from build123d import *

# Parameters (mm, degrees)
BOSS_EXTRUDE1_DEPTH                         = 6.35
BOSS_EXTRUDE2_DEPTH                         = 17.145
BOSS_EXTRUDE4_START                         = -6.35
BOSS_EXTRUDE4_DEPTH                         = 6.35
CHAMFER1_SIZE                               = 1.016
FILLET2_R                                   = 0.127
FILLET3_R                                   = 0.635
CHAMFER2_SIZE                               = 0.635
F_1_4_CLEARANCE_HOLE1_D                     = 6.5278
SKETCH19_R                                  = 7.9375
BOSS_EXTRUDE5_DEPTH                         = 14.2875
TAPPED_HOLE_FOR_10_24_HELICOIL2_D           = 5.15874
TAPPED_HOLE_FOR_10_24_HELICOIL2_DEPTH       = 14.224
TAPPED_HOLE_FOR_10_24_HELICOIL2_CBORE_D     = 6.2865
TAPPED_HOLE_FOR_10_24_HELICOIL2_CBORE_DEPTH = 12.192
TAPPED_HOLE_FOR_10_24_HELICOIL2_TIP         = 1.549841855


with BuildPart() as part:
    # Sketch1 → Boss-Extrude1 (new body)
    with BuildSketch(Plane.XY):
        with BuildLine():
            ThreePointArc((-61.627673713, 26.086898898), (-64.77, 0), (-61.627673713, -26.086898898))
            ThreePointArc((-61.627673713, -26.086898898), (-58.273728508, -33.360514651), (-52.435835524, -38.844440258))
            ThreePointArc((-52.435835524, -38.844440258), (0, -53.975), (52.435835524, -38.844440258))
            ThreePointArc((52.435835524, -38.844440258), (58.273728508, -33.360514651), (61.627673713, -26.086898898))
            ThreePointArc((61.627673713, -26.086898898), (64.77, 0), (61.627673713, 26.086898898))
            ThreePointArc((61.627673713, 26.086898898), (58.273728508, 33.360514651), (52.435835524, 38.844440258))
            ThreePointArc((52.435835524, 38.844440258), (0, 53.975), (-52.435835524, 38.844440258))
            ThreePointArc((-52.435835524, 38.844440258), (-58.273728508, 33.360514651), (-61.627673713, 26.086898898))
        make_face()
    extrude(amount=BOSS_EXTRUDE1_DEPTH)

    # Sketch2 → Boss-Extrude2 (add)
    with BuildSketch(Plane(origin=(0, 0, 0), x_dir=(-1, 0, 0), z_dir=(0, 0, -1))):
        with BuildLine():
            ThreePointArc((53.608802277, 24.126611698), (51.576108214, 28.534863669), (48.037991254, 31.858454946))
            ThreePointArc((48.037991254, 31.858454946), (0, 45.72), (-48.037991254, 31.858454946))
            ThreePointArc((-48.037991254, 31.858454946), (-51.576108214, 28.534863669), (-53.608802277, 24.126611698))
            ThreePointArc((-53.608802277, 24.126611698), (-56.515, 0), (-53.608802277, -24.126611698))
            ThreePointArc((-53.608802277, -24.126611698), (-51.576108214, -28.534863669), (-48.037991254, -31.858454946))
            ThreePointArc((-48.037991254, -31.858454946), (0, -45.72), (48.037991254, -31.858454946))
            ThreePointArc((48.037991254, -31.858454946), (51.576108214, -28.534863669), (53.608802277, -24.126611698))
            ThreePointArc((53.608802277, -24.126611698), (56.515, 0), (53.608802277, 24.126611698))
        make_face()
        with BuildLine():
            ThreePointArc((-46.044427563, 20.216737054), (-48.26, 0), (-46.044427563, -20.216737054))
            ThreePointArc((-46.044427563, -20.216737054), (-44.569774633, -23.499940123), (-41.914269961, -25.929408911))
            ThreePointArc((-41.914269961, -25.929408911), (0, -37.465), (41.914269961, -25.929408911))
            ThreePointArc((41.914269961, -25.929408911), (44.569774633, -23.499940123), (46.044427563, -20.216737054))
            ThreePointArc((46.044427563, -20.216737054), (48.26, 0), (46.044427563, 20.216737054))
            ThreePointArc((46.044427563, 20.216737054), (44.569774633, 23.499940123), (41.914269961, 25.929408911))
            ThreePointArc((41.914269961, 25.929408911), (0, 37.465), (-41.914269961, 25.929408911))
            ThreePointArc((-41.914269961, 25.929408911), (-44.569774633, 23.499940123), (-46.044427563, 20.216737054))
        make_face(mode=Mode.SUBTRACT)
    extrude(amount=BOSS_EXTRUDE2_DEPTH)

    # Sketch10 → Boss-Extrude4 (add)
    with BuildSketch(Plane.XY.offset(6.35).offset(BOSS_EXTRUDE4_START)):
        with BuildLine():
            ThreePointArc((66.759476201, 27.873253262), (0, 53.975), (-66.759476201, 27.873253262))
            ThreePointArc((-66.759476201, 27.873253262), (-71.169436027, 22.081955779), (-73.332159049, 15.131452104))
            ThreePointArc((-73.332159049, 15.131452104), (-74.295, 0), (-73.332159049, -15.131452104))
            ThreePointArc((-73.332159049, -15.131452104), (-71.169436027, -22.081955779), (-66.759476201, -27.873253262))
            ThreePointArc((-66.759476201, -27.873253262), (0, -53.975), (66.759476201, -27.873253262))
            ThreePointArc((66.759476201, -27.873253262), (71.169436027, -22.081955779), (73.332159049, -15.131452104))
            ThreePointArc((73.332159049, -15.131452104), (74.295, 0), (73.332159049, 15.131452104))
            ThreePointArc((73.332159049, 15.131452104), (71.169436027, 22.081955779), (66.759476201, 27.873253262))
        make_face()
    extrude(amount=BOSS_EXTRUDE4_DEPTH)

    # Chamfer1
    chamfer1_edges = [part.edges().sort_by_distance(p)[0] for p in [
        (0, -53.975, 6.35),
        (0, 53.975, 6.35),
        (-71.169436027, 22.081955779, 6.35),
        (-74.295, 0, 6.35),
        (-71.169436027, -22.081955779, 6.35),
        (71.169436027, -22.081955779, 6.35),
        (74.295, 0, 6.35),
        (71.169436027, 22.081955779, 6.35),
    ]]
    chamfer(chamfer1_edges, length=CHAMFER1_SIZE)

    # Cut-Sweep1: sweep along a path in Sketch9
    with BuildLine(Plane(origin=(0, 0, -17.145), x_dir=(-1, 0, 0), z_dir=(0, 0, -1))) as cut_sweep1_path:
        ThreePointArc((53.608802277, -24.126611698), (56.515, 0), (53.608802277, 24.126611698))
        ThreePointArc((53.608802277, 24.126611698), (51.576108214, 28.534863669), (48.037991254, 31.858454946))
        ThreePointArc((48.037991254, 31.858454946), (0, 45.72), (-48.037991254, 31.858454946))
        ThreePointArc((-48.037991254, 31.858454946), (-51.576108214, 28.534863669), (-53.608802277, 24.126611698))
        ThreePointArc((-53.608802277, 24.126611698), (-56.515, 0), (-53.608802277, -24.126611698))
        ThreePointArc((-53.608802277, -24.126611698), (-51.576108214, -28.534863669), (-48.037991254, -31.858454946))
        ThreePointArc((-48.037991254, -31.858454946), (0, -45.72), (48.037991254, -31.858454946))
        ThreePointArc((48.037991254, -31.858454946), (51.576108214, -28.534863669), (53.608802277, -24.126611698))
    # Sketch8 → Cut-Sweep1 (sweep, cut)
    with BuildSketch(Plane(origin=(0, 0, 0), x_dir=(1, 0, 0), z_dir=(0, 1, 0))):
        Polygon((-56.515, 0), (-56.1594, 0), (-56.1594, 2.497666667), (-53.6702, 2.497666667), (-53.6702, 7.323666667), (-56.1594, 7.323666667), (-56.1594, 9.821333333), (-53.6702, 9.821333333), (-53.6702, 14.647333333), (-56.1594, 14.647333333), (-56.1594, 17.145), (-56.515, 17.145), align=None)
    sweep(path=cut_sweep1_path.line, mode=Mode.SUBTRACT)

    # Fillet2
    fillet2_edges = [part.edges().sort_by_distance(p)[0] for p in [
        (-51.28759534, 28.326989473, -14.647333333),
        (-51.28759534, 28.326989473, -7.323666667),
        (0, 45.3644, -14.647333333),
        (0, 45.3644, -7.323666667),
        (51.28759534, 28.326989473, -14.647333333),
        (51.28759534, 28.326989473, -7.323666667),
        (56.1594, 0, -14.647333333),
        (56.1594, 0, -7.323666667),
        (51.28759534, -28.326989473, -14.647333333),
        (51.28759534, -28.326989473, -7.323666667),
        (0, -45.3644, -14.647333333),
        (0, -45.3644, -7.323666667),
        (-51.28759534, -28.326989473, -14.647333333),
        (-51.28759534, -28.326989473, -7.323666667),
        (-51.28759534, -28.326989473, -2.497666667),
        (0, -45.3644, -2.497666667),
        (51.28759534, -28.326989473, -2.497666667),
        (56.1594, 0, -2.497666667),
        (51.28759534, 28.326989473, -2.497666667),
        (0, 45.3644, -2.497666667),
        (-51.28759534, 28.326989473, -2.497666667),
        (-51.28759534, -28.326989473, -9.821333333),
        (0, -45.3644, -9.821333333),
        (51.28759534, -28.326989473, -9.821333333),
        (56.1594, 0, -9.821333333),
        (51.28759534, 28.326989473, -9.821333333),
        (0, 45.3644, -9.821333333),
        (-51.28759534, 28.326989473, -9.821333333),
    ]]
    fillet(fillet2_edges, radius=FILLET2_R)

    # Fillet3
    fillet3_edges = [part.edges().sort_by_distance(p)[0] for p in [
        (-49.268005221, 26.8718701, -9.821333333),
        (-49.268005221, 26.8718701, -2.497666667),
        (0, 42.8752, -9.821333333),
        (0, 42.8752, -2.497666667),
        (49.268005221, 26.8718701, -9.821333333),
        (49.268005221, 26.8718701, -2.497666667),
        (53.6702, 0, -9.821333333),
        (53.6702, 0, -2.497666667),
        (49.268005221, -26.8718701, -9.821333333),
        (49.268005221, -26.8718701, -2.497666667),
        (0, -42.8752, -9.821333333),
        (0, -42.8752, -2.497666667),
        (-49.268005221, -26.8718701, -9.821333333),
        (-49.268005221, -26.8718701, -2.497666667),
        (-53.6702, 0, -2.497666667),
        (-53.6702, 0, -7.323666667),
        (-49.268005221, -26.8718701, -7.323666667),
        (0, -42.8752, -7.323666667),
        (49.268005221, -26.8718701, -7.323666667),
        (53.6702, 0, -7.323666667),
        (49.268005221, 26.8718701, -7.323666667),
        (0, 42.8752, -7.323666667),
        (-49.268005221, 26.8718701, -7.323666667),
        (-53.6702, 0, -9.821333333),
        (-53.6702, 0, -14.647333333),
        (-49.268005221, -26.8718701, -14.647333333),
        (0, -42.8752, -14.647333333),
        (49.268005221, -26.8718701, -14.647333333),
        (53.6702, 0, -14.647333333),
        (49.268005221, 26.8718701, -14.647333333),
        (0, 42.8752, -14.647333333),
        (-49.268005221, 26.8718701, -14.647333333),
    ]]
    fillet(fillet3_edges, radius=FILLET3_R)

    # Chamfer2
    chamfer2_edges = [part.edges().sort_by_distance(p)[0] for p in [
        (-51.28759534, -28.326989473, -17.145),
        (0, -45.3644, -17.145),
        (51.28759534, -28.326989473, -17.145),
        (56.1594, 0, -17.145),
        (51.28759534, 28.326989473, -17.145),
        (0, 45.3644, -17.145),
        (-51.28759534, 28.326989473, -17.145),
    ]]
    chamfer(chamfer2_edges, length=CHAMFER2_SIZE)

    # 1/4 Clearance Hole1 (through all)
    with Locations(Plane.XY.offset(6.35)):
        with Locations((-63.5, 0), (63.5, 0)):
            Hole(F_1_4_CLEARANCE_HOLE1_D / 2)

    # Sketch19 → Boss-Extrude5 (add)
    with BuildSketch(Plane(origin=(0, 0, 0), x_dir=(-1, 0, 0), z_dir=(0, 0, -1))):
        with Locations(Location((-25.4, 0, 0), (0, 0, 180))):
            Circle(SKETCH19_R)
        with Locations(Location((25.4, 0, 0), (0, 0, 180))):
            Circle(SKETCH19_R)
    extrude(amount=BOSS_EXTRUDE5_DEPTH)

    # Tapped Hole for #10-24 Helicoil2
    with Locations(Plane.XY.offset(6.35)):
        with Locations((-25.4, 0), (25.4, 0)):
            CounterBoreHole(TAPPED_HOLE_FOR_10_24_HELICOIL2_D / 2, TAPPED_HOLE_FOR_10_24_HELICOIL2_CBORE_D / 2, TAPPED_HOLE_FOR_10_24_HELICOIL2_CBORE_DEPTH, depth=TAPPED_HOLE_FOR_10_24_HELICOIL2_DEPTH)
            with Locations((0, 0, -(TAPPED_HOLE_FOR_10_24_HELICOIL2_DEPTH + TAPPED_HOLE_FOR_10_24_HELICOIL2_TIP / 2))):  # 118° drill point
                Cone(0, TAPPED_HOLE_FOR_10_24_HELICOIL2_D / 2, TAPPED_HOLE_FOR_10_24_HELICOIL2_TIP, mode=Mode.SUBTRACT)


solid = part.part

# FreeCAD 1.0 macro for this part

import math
import FreeCAD as App
import Part
import Sketcher
Q = App.Units.Quantity


def edges_at(feature, points):
    """Names of the edges that pass closest to the given points."""
    edges = feature.Shape.Edges
    near = lambda p: min(range(len(edges)), key=lambda i: edges[i].distToShape(Part.Vertex(*p))[0])
    return sorted({f"Edge{near(p) + 1}" for p in points})

doc = App.newDocument("Part")
params = doc.addObject("Spreadsheet::Sheet", "Params")
for row, (alias, value) in enumerate([
    ("sketch1_radius", "4.325 in"),
    ("sketch1_radius2", "0.825 in"),
    ("sketch1_radius3", "3.875 in"),
    ("pad1_length", "0.25 in"),
    ("sketch2_radius", "4 in"),
    ("sketch2_radius2", "0.5 in"),
    ("sketch2_radius3", "3.55 in"),
    ("sketch2_radius4", "0.35 in"),
    ("sketch2_radius5", "3.675 in"),
    ("pad2_length", "0.675 in"),
    ("sketch3_radius", "4.7 in"),
    ("sketch3_radius2", "3.875 in"),
    ("sketch3_radius3", "0.825 in"),
    ("pad3_length", "0.25 in"),
    ("chamfer_size", "0.04 in"),
    ("sketch4_height", "0.19 in"),
    ("sketch4_width", "0.014 in"),
    ("sketch4_width2", "0.098 in"),
    ("sketch4_height2", "0.675 in"),
    ("sketch5_radius", "4 in"),
    ("sketch5_radius2", "0.5 in"),
    ("sketch5_radius3", "3.55 in"),
    ("fillet_radius", "0.005 in"),
    ("fillet2_radius", "0.025 in"),
    ("chamfer2_size", "0.025 in"),
    ("sketch6_diameter", "0.257 in"),
    ("hole_diameter", "0.257 in"),
    ("sketch7_diameter", "0.625 in"),
    ("pad4_length", "0.5625 in"),
    ("hole2_diameter", "0.2031 in"),
    ("hole2_depth", "0.56 in"),
    ("hole2_cbore_diameter", "0.2475 in"),
    ("hole2_cbore_depth", "0.48 in"),
], start=1):
    params.set(f"A{row}", alias)
    params.set(f"B{row}", "=" + value)
    params.setAlias(f"B{row}", alias)

body = doc.addObject("PartDesign::Body", "Body")

sketch1 = body.newObject("Sketcher::SketchObject", "Sketch")
sketch1.AttachmentSupport = (doc.getObject("XY_Plane"), [""])
sketch1.MapMode = "FlatFace"
sketch1.addGeometry(Part.ArcOfCircle(Part.Circle(App.Vector(45.085, 0, 0), App.Vector(0, 0, 1), 109.855), math.radians(166.262932), math.radians(193.737068)), False)
sketch1.addGeometry(Part.ArcOfCircle(Part.Circle(App.Vector(-41.272077, -21.110785, 0), App.Vector(0, 0, 1), 20.955), math.radians(-166.262932), math.radians(-122.191393)), False)
sketch1.addGeometry(Part.ArcOfCircle(Part.Circle(App.Vector(0, 44.45, 0), App.Vector(0, 0, 1), 98.425), math.radians(-122.191393), math.radians(-57.808607)), False)
sketch1.addGeometry(Part.ArcOfCircle(Part.Circle(App.Vector(41.272077, -21.110785, 0), App.Vector(0, 0, 1), 20.955), math.radians(-57.808607), math.radians(-13.737068)), False)
sketch1.addGeometry(Part.ArcOfCircle(Part.Circle(App.Vector(-45.085, 0, 0), App.Vector(0, 0, 1), 109.855), math.radians(-13.737068), math.radians(13.737068)), False)
sketch1.addGeometry(Part.ArcOfCircle(Part.Circle(App.Vector(41.272077, 21.110785, 0), App.Vector(0, 0, 1), 20.955), math.radians(13.737068), math.radians(57.808607)), False)
sketch1.addGeometry(Part.ArcOfCircle(Part.Circle(App.Vector(0, -44.45, 0), App.Vector(0, 0, 1), 98.425), math.radians(57.808607), math.radians(122.191393)), False)
sketch1.addGeometry(Part.ArcOfCircle(Part.Circle(App.Vector(-41.272077, 21.110785, 0), App.Vector(0, 0, 1), 20.955), math.radians(122.191393), math.radians(166.262932)), False)
sketch1.addConstraint(Sketcher.Constraint("Tangent", 0, 2, 1, 1))
sketch1.addConstraint(Sketcher.Constraint("Tangent", 1, 2, 2, 1))
sketch1.addConstraint(Sketcher.Constraint("Tangent", 2, 2, 3, 1))
sketch1.addConstraint(Sketcher.Constraint("Tangent", 3, 2, 4, 1))
sketch1.addConstraint(Sketcher.Constraint("Tangent", 4, 2, 5, 1))
sketch1.addConstraint(Sketcher.Constraint("Tangent", 5, 2, 6, 1))
sketch1.addConstraint(Sketcher.Constraint("Tangent", 6, 2, 7, 1))
sketch1.addConstraint(Sketcher.Constraint("Tangent", 7, 2, 0, 1))
sketch1.addConstraint(Sketcher.Constraint("Equal", 1, 3))
sketch1.addConstraint(Sketcher.Constraint("Equal", 0, 4))
sketch1.addConstraint(Sketcher.Constraint("Equal", 3, 5))
sketch1.addConstraint(Sketcher.Constraint("Equal", 2, 6))
sketch1.addConstraint(Sketcher.Constraint("Equal", 5, 7))
sketch1.addConstraint(Sketcher.Constraint("Symmetric", 0, 3, 4, 3, -1, 1))
sketch1.addConstraint(Sketcher.Constraint("Symmetric", 2, 3, 6, 3, -1, 1))
sketch1.addConstraint(Sketcher.Constraint("Symmetric", 1, 3, 3, 3, -2))
sketch1.addConstraint(Sketcher.Constraint("Radius", 0, Q("4.325 in")))
sketch1.addConstraint(Sketcher.Constraint("Radius", 1, Q("0.825 in")))
sketch1.addConstraint(Sketcher.Constraint("Radius", 2, Q("3.875 in")))
sketch1.addConstraint(Sketcher.Constraint("DistanceY", -1, 1, 2, 3, Q("1.75 in")))
sketch1.addConstraint(Sketcher.Constraint("DistanceX", 4, 3, 0, 3, Q("3.55 in")))
sketch1.setExpression("Constraints[16]", "Params.sketch1_radius")
sketch1.setExpression("Constraints[17]", "Params.sketch1_radius2")
sketch1.setExpression("Constraints[18]", "Params.sketch1_radius3")
pad1 = body.newObject("PartDesign::Pad", "Pad")
pad1.Profile = sketch1
pad1.setExpression("Length", "Params.pad1_length")

sketch2 = body.newObject("Sketcher::SketchObject", "Sketch001")
sketch2.AttachmentSupport = (doc.getObject("XY_Plane"), [""])
sketch2.MapMode = "FlatFace"
sketch2.addGeometry(Part.ArcOfCircle(Part.Circle(App.Vector(-41.272077, 21.110785, 0), App.Vector(0, 0, 1), 12.7), math.radians(122.191393), math.radians(166.262932)), False)
sketch2.addGeometry(Part.ArcOfCircle(Part.Circle(App.Vector(0, -44.45, 0), App.Vector(0, 0, 1), 90.17), math.radians(57.808607), math.radians(122.191393)), False)
sketch2.addGeometry(Part.ArcOfCircle(Part.Circle(App.Vector(41.272077, 21.110785, 0), App.Vector(0, 0, 1), 12.7), math.radians(13.737068), math.radians(57.808607)), False)
sketch2.addGeometry(Part.ArcOfCircle(Part.Circle(App.Vector(-45.085, 0, 0), App.Vector(0, 0, 1), 101.6), math.radians(-13.737068), math.radians(13.737068)), False)
sketch2.addGeometry(Part.ArcOfCircle(Part.Circle(App.Vector(41.272077, -21.110785, 0), App.Vector(0, 0, 1), 12.7), math.radians(-57.808607), math.radians(-13.737068)), False)
sketch2.addGeometry(Part.ArcOfCircle(Part.Circle(App.Vector(0, 44.45, 0), App.Vector(0, 0, 1), 90.17), math.radians(-122.191393), math.radians(-57.808607)), False)
sketch2.addGeometry(Part.ArcOfCircle(Part.Circle(App.Vector(-41.272077, -21.110785, 0), App.Vector(0, 0, 1), 12.7), math.radians(-166.262932), math.radians(-122.191393)), False)
sketch2.addGeometry(Part.ArcOfCircle(Part.Circle(App.Vector(45.085, 0, 0), App.Vector(0, 0, 1), 101.6), math.radians(166.262932), math.radians(193.737068)), False)
sketch2.addGeometry(Part.ArcOfCircle(Part.Circle(App.Vector(-45.085, 0, 0), App.Vector(0, 0, 1), 93.345), math.radians(-12.508287), math.radians(12.508287)), False)
sketch2.addGeometry(Part.ArcOfCircle(Part.Circle(App.Vector(37.365434, 18.291334, 0), App.Vector(0, 0, 1), 8.89), math.radians(12.508287), math.radians(59.224199)), False)
sketch2.addGeometry(Part.ArcOfCircle(Part.Circle(App.Vector(0, -44.45, 0), App.Vector(0, 0, 1), 81.915), math.radians(59.224199), math.radians(120.775801)), False)
sketch2.addGeometry(Part.ArcOfCircle(Part.Circle(App.Vector(-37.365434, 18.291334, 0), App.Vector(0, 0, 1), 8.89), math.radians(120.775801), math.radians(167.491713)), False)
sketch2.addGeometry(Part.ArcOfCircle(Part.Circle(App.Vector(45.085, 0, 0), App.Vector(0, 0, 1), 93.345), math.radians(167.491713), math.radians(192.508287)), False)
sketch2.addGeometry(Part.ArcOfCircle(Part.Circle(App.Vector(-37.365434, -18.291334, 0), App.Vector(0, 0, 1), 8.89), math.radians(-167.491713), math.radians(-120.775801)), False)
sketch2.addGeometry(Part.ArcOfCircle(Part.Circle(App.Vector(0, 44.45, 0), App.Vector(0, 0, 1), 81.915), math.radians(-120.775801), math.radians(-59.224199)), False)
sketch2.addGeometry(Part.ArcOfCircle(Part.Circle(App.Vector(37.365434, -18.291334, 0), App.Vector(0, 0, 1), 8.89), math.radians(-59.224199), math.radians(-12.508287)), False)
sketch2.addConstraint(Sketcher.Constraint("Tangent", 0, 1, 1, 2))
sketch2.addConstraint(Sketcher.Constraint("Tangent", 1, 1, 2, 2))
sketch2.addConstraint(Sketcher.Constraint("Tangent", 2, 1, 3, 2))
sketch2.addConstraint(Sketcher.Constraint("Tangent", 3, 1, 4, 2))
sketch2.addConstraint(Sketcher.Constraint("Tangent", 4, 1, 5, 2))
sketch2.addConstraint(Sketcher.Constraint("Tangent", 5, 1, 6, 2))
sketch2.addConstraint(Sketcher.Constraint("Tangent", 6, 1, 7, 2))
sketch2.addConstraint(Sketcher.Constraint("Tangent", 7, 1, 0, 2))
sketch2.addConstraint(Sketcher.Constraint("Tangent", 8, 2, 9, 1))
sketch2.addConstraint(Sketcher.Constraint("Tangent", 9, 2, 10, 1))
sketch2.addConstraint(Sketcher.Constraint("Tangent", 10, 2, 11, 1))
sketch2.addConstraint(Sketcher.Constraint("Tangent", 11, 2, 12, 1))
sketch2.addConstraint(Sketcher.Constraint("Tangent", 12, 2, 13, 1))
sketch2.addConstraint(Sketcher.Constraint("Tangent", 13, 2, 14, 1))
sketch2.addConstraint(Sketcher.Constraint("Tangent", 14, 2, 15, 1))
sketch2.addConstraint(Sketcher.Constraint("Tangent", 15, 2, 8, 1))
sketch2.addConstraint(Sketcher.Constraint("Coincident", 8, 3, 3, 3))
sketch2.addConstraint(Sketcher.Constraint("Coincident", 10, 3, 1, 3))
sketch2.addConstraint(Sketcher.Constraint("Coincident", 12, 3, 7, 3))
sketch2.addConstraint(Sketcher.Constraint("Coincident", 14, 3, 5, 3))
sketch2.addConstraint(Sketcher.Constraint("Equal", 0, 2))
sketch2.addConstraint(Sketcher.Constraint("Equal", 2, 4))
sketch2.addConstraint(Sketcher.Constraint("Equal", 1, 5))
sketch2.addConstraint(Sketcher.Constraint("Equal", 4, 6))
sketch2.addConstraint(Sketcher.Constraint("Equal", 3, 7))
sketch2.addConstraint(Sketcher.Constraint("Equal", 9, 11))
sketch2.addConstraint(Sketcher.Constraint("Equal", 8, 12))
sketch2.addConstraint(Sketcher.Constraint("Equal", 11, 13))
sketch2.addConstraint(Sketcher.Constraint("Equal", 10, 14))
sketch2.addConstraint(Sketcher.Constraint("Equal", 13, 15))
sketch2.addConstraint(Sketcher.Constraint("Symmetric", 0, 3, 4, 3, -1, 1))
sketch2.addConstraint(Sketcher.Constraint("Symmetric", 2, 3, 6, 3, -1, 1))
sketch2.addConstraint(Sketcher.Constraint("Symmetric", 0, 3, 2, 3, -2))
sketch2.addConstraint(Sketcher.Constraint("Radius", 3, Q("4 in")))
sketch2.addConstraint(Sketcher.Constraint("Radius", 0, Q("0.5 in")))
sketch2.addConstraint(Sketcher.Constraint("Radius", 1, Q("3.55 in")))
sketch2.addConstraint(Sketcher.Constraint("Radius", 9, Q("0.35 in")))
sketch2.addConstraint(Sketcher.Constraint("Radius", 8, Q("3.675 in")))
sketch2.addConstraint(Sketcher.Constraint("Radius", 10, Q("3.225 in")))
sketch2.addConstraint(Sketcher.Constraint("DistanceY", 1, 3, 5, 3, Q("3.5 in")))
sketch2.addConstraint(Sketcher.Constraint("DistanceX", 3, 3, -1, 1, Q("1.775 in")))
sketch2.setExpression("Constraints[33]", "Params.sketch2_radius")
sketch2.setExpression("Constraints[34]", "Params.sketch2_radius2")
sketch2.setExpression("Constraints[35]", "Params.sketch2_radius3")
sketch2.setExpression("Constraints[36]", "Params.sketch2_radius4")
sketch2.setExpression("Constraints[37]", "Params.sketch2_radius5")
pad2 = body.newObject("PartDesign::Pad", "Pad001")
pad2.Profile = sketch2
pad2.setExpression("Length", "Params.pad2_length")
pad2.Reversed = True

sketch3 = body.newObject("Sketcher::SketchObject", "Sketch002")
sketch3.AttachmentSupport = (doc.getObject("XY_Plane"), [""])
sketch3.MapMode = "FlatFace"
sketch3.addGeometry(Part.ArcOfCircle(Part.Circle(App.Vector(0, -44.45, 0), App.Vector(0, 0, 1), 98.425), math.radians(47.290802), math.radians(132.709198)), False)
sketch3.addGeometry(Part.ArcOfCircle(Part.Circle(App.Vector(-52.546168, 12.475399, 0), App.Vector(0, 0, 1), 20.955), math.radians(132.709198), math.radians(172.718155)), False)
sketch3.addGeometry(Part.ArcOfCircle(Part.Circle(App.Vector(45.085, 0, 0), App.Vector(0, 0, 1), 119.38), math.radians(172.718155), math.radians(187.281845)), False)
sketch3.addGeometry(Part.ArcOfCircle(Part.Circle(App.Vector(-52.546168, -12.475399, 0), App.Vector(0, 0, 1), 20.955), math.radians(-172.718155), math.radians(-132.709198)), False)
sketch3.addGeometry(Part.ArcOfCircle(Part.Circle(App.Vector(0, 44.45, 0), App.Vector(0, 0, 1), 98.425), math.radians(-132.709198), math.radians(-47.290802)), False)
sketch3.addGeometry(Part.ArcOfCircle(Part.Circle(App.Vector(52.546168, -12.475399, 0), App.Vector(0, 0, 1), 20.955), math.radians(-47.290802), math.radians(-7.281845)), False)
sketch3.addGeometry(Part.ArcOfCircle(Part.Circle(App.Vector(-45.085, 0, 0), App.Vector(0, 0, 1), 119.38), math.radians(-7.281845), math.radians(7.281845)), False)
sketch3.addGeometry(Part.ArcOfCircle(Part.Circle(App.Vector(52.546168, 12.475399, 0), App.Vector(0, 0, 1), 20.955), math.radians(7.281845), math.radians(47.290802)), False)
sketch3.addConstraint(Sketcher.Constraint("Tangent", 0, 2, 1, 1))
sketch3.addConstraint(Sketcher.Constraint("Tangent", 1, 2, 2, 1))
sketch3.addConstraint(Sketcher.Constraint("Tangent", 2, 2, 3, 1))
sketch3.addConstraint(Sketcher.Constraint("Tangent", 3, 2, 4, 1))
sketch3.addConstraint(Sketcher.Constraint("Tangent", 4, 2, 5, 1))
sketch3.addConstraint(Sketcher.Constraint("Tangent", 5, 2, 6, 1))
sketch3.addConstraint(Sketcher.Constraint("Tangent", 6, 2, 7, 1))
sketch3.addConstraint(Sketcher.Constraint("Tangent", 7, 2, 0, 1))
sketch3.addConstraint(Sketcher.Constraint("Equal", 1, 3))
sketch3.addConstraint(Sketcher.Constraint("Equal", 0, 4))
sketch3.addConstraint(Sketcher.Constraint("Equal", 3, 5))
sketch3.addConstraint(Sketcher.Constraint("Equal", 2, 6))
sketch3.addConstraint(Sketcher.Constraint("Equal", 5, 7))
sketch3.addConstraint(Sketcher.Constraint("Symmetric", 0, 3, 4, 3, -1, 1))
sketch3.addConstraint(Sketcher.Constraint("Symmetric", 2, 3, 6, 3, -1, 1))
sketch3.addConstraint(Sketcher.Constraint("Symmetric", 3, 3, 5, 3, -2))
sketch3.addConstraint(Sketcher.Constraint("Radius", 2, Q("4.7 in")))
sketch3.addConstraint(Sketcher.Constraint("Radius", 0, Q("3.875 in")))
sketch3.addConstraint(Sketcher.Constraint("Radius", 1, Q("0.825 in")))
sketch3.addConstraint(Sketcher.Constraint("DistanceY", 0, 3, 4, 3, Q("3.5 in")))
sketch3.addConstraint(Sketcher.Constraint("DistanceX", 6, 3, 2, 3, Q("3.55 in")))
sketch3.setExpression("Constraints[16]", "Params.sketch3_radius")
sketch3.setExpression("Constraints[17]", "Params.sketch3_radius2")
sketch3.setExpression("Constraints[18]", "Params.sketch3_radius3")
pad3 = body.newObject("PartDesign::Pad", "Pad002")
pad3.Profile = sketch3
pad3.setExpression("Length", "Params.pad3_length")
doc.recompute()

chamfer = body.newObject("PartDesign::Chamfer", "Chamfer")
chamfer.Base = (pad3, edges_at(pad3, [
    (0, -53.975, 6.35),
    (0, 53.975, 6.35),
    (-71.169, 22.082, 6.35),
    (-74.295, 0, 6.35),
    (-71.169, -22.082, 6.35),
    (71.169, -22.082, 6.35),
    (74.295, 0, 6.35),
    (71.169, 22.082, 6.35),
]))
chamfer.setExpression("Size", "Params.chamfer_size")

sketch4 = body.newObject("Sketcher::SketchObject", "Sketch003")
sketch4.AttachmentSupport = (doc.getObject("XZ_Plane"), [""])
sketch4.MapMode = "FlatFace"
sketch4.addGeometry(Part.LineSegment(App.Vector(-56.515, 0, 0), App.Vector(-56.1594, 0, 0)), False)
sketch4.addGeometry(Part.LineSegment(App.Vector(-56.1594, 0, 0), App.Vector(-56.1594, -2.497667, 0)), False)
sketch4.addGeometry(Part.LineSegment(App.Vector(-56.1594, -2.497667, 0), App.Vector(-53.6702, -2.497667, 0)), False)
sketch4.addGeometry(Part.LineSegment(App.Vector(-53.6702, -2.497667, 0), App.Vector(-53.6702, -7.323667, 0)), False)
sketch4.addGeometry(Part.LineSegment(App.Vector(-53.6702, -7.323667, 0), App.Vector(-56.1594, -7.323667, 0)), False)
sketch4.addGeometry(Part.LineSegment(App.Vector(-56.1594, -7.323667, 0), App.Vector(-56.1594, -9.821333, 0)), False)
sketch4.addGeometry(Part.LineSegment(App.Vector(-56.1594, -9.821333, 0), App.Vector(-53.6702, -9.821333, 0)), False)
sketch4.addGeometry(Part.LineSegment(App.Vector(-53.6702, -9.821333, 0), App.Vector(-53.6702, -14.647333, 0)), False)
sketch4.addGeometry(Part.LineSegment(App.Vector(-53.6702, -14.647333, 0), App.Vector(-56.1594, -14.647333, 0)), False)
sketch4.addGeometry(Part.LineSegment(App.Vector(-56.1594, -14.647333, 0), App.Vector(-56.1594, -17.145, 0)), False)
sketch4.addGeometry(Part.LineSegment(App.Vector(-56.1594, -17.145, 0), App.Vector(-56.515, -17.145, 0)), False)
sketch4.addGeometry(Part.LineSegment(App.Vector(-56.515, -17.145, 0), App.Vector(-56.515, 0, 0)), False)
sketch4.addConstraint(Sketcher.Constraint("Coincident", 0, 2, 1, 1))
sketch4.addConstraint(Sketcher.Constraint("Coincident", 1, 2, 2, 1))
sketch4.addConstraint(Sketcher.Constraint("Coincident", 2, 2, 3, 1))
sketch4.addConstraint(Sketcher.Constraint("Coincident", 3, 2, 4, 1))
sketch4.addConstraint(Sketcher.Constraint("Coincident", 4, 2, 5, 1))
sketch4.addConstraint(Sketcher.Constraint("Coincident", 5, 2, 6, 1))
sketch4.addConstraint(Sketcher.Constraint("Coincident", 6, 2, 7, 1))
sketch4.addConstraint(Sketcher.Constraint("Coincident", 7, 2, 8, 1))
sketch4.addConstraint(Sketcher.Constraint("Coincident", 8, 2, 9, 1))
sketch4.addConstraint(Sketcher.Constraint("Coincident", 9, 2, 10, 1))
sketch4.addConstraint(Sketcher.Constraint("Coincident", 10, 2, 11, 1))
sketch4.addConstraint(Sketcher.Constraint("Coincident", 11, 2, 0, 1))
sketch4.addConstraint(Sketcher.Constraint("Horizontal", 0))
sketch4.addConstraint(Sketcher.Constraint("Vertical", 1))
sketch4.addConstraint(Sketcher.Constraint("Horizontal", 2))
sketch4.addConstraint(Sketcher.Constraint("Vertical", 3))
sketch4.addConstraint(Sketcher.Constraint("Horizontal", 4))
sketch4.addConstraint(Sketcher.Constraint("Vertical", 5))
sketch4.addConstraint(Sketcher.Constraint("Horizontal", 6))
sketch4.addConstraint(Sketcher.Constraint("Vertical", 7))
sketch4.addConstraint(Sketcher.Constraint("Horizontal", 8))
sketch4.addConstraint(Sketcher.Constraint("Vertical", 9))
sketch4.addConstraint(Sketcher.Constraint("Horizontal", 10))
sketch4.addConstraint(Sketcher.Constraint("Vertical", 11))
sketch4.addConstraint(Sketcher.Constraint("PointOnObject", 0, 2, -1))
sketch4.addConstraint(Sketcher.Constraint("Vertical", 1, 2, 4, 2))
sketch4.addConstraint(Sketcher.Constraint("Vertical", 3, 2, 6, 2))
sketch4.addConstraint(Sketcher.Constraint("Vertical", 5, 2, 8, 2))
sketch4.addConstraint(Sketcher.Constraint("Equal", 1, 5))
sketch4.addConstraint(Sketcher.Constraint("Equal", 3, 7))
sketch4.addConstraint(Sketcher.Constraint("Equal", 5, 9))
sketch4.addConstraint(Sketcher.Constraint("DistanceY", 3, 2, 3, 1, Q("0.19 in")))
sketch4.addConstraint(Sketcher.Constraint("DistanceX", 0, 1, 0, 2, Q("0.014 in")))
sketch4.addConstraint(Sketcher.Constraint("DistanceX", 2, 1, 2, 2, Q("0.098 in")))
sketch4.addConstraint(Sketcher.Constraint("DistanceY", 11, 1, 11, 2, Q("0.675 in")))
sketch4.addConstraint(Sketcher.Constraint("DistanceX", 0, 2, -1, 1, Q("2.211 in")))
sketch4.setExpression("Constraints[31]", "Params.sketch4_height")
sketch4.setExpression("Constraints[32]", "Params.sketch4_width")
sketch4.setExpression("Constraints[33]", "Params.sketch4_width2")
sketch4.setExpression("Constraints[34]", "Params.sketch4_height2")

sketch5 = body.newObject("Sketcher::SketchObject", "Sketch004")
sketch5.AttachmentSupport = (doc.getObject("XY_Plane"), [""])
sketch5.MapMode = "FlatFace"
sketch5.AttachmentOffset = App.Placement(App.Vector(0, 0, -0.675 * 25.4), App.Rotation())
sketch5.addGeometry(Part.ArcOfCircle(Part.Circle(App.Vector(45.085, 0, 0), App.Vector(0, 0, 1), 101.6), math.radians(166.262932), math.radians(193.737068)), False)
sketch5.addGeometry(Part.ArcOfCircle(Part.Circle(App.Vector(-41.272077, 21.110785, 0), App.Vector(0, 0, 1), 12.7), math.radians(122.191393), math.radians(166.262932)), False)
sketch5.addGeometry(Part.ArcOfCircle(Part.Circle(App.Vector(0, -44.45, 0), App.Vector(0, 0, 1), 90.17), math.radians(57.808607), math.radians(122.191393)), False)
sketch5.addGeometry(Part.ArcOfCircle(Part.Circle(App.Vector(41.272077, 21.110785, 0), App.Vector(0, 0, 1), 12.7), math.radians(13.737068), math.radians(57.808607)), False)
sketch5.addGeometry(Part.ArcOfCircle(Part.Circle(App.Vector(-45.085, 0, 0), App.Vector(0, 0, 1), 101.6), math.radians(-13.737068), math.radians(13.737068)), False)
sketch5.addGeometry(Part.ArcOfCircle(Part.Circle(App.Vector(41.272077, -21.110785, 0), App.Vector(0, 0, 1), 12.7), math.radians(-57.808607), math.radians(-13.737068)), False)
sketch5.addGeometry(Part.ArcOfCircle(Part.Circle(App.Vector(0, 44.45, 0), App.Vector(0, 0, 1), 90.17), math.radians(-122.191393), math.radians(-57.808607)), False)
sketch5.addGeometry(Part.ArcOfCircle(Part.Circle(App.Vector(-41.272077, -21.110785, 0), App.Vector(0, 0, 1), 12.7), math.radians(-166.262932), math.radians(-122.191393)), False)
sketch5.addConstraint(Sketcher.Constraint("Tangent", 0, 1, 1, 2))
sketch5.addConstraint(Sketcher.Constraint("Tangent", 1, 1, 2, 2))
sketch5.addConstraint(Sketcher.Constraint("Tangent", 2, 1, 3, 2))
sketch5.addConstraint(Sketcher.Constraint("Tangent", 3, 1, 4, 2))
sketch5.addConstraint(Sketcher.Constraint("Tangent", 4, 1, 5, 2))
sketch5.addConstraint(Sketcher.Constraint("Tangent", 5, 1, 6, 2))
sketch5.addConstraint(Sketcher.Constraint("Tangent", 6, 1, 7, 2))
sketch5.addConstraint(Sketcher.Constraint("Tangent", 7, 1, 0, 2))
sketch5.addConstraint(Sketcher.Constraint("Equal", 1, 3))
sketch5.addConstraint(Sketcher.Constraint("Equal", 0, 4))
sketch5.addConstraint(Sketcher.Constraint("Equal", 3, 5))
sketch5.addConstraint(Sketcher.Constraint("Equal", 2, 6))
sketch5.addConstraint(Sketcher.Constraint("Equal", 5, 7))
sketch5.addConstraint(Sketcher.Constraint("Symmetric", 0, 3, 4, 3, -1, 1))
sketch5.addConstraint(Sketcher.Constraint("Symmetric", 2, 3, 6, 3, -1, 1))
sketch5.addConstraint(Sketcher.Constraint("Symmetric", 1, 3, 3, 3, -2))
sketch5.addConstraint(Sketcher.Constraint("Radius", 0, Q("4 in")))
sketch5.addConstraint(Sketcher.Constraint("Radius", 1, Q("0.5 in")))
sketch5.addConstraint(Sketcher.Constraint("Radius", 2, Q("3.55 in")))
sketch5.addConstraint(Sketcher.Constraint("DistanceY", 2, 3, -1, 1, Q("1.75 in")))
sketch5.addConstraint(Sketcher.Constraint("DistanceX", 4, 3, 0, 3, Q("3.55 in")))
sketch5.setExpression("Constraints[16]", "Params.sketch5_radius")
sketch5.setExpression("Constraints[17]", "Params.sketch5_radius2")
sketch5.setExpression("Constraints[18]", "Params.sketch5_radius3")
doc.recompute()

subtractivepipe = body.newObject("PartDesign::SubtractivePipe", "SubtractivePipe")
subtractivepipe.Profile = sketch4
subtractivepipe.Spine = (sketch5, ["Edge1", "Edge2", "Edge3", "Edge4", "Edge5", "Edge6", "Edge7", "Edge8"])
doc.recompute()

fillet = body.newObject("PartDesign::Fillet", "Fillet")
fillet.Base = (subtractivepipe, edges_at(subtractivepipe, [
    (-51.288, 28.327, -14.647),
    (-51.288, 28.327, -7.324),
    (0, 45.364, -14.647),
    (0, 45.364, -7.324),
    (51.288, 28.327, -14.647),
    (51.288, 28.327, -7.324),
    (56.159, 0, -14.647),
    (56.159, 0, -7.324),
    (51.288, -28.327, -14.647),
    (51.288, -28.327, -7.324),
    (0, -45.364, -14.647),
    (0, -45.364, -7.324),
    (-51.288, -28.327, -14.647),
    (-51.288, -28.327, -7.324),
    (-51.288, -28.327, -2.498),
    (0, -45.364, -2.498),
    (51.288, -28.327, -2.498),
    (56.159, 0, -2.498),
    (51.288, 28.327, -2.498),
    (0, 45.364, -2.498),
    (-51.288, 28.327, -2.498),
    (-51.288, -28.327, -9.821),
    (0, -45.364, -9.821),
    (51.288, -28.327, -9.821),
    (56.159, 0, -9.821),
    (51.288, 28.327, -9.821),
    (0, 45.364, -9.821),
    (-51.288, 28.327, -9.821),
]))
fillet.setExpression("Radius", "Params.fillet_radius")
doc.recompute()

fillet2 = body.newObject("PartDesign::Fillet", "Fillet001")
fillet2.Base = (fillet, edges_at(fillet, [
    (-49.268, 26.872, -9.821),
    (-49.268, 26.872, -2.498),
    (0, 42.875, -9.821),
    (0, 42.875, -2.498),
    (49.268, 26.872, -9.821),
    (49.268, 26.872, -2.498),
    (53.67, 0, -9.821),
    (53.67, 0, -2.498),
    (49.268, -26.872, -9.821),
    (49.268, -26.872, -2.498),
    (0, -42.875, -9.821),
    (0, -42.875, -2.498),
    (-49.268, -26.872, -9.821),
    (-49.268, -26.872, -2.498),
    (-53.67, 0, -2.498),
    (-53.67, 0, -7.324),
    (-49.268, -26.872, -7.324),
    (0, -42.875, -7.324),
    (49.268, -26.872, -7.324),
    (53.67, 0, -7.324),
    (49.268, 26.872, -7.324),
    (0, 42.875, -7.324),
    (-49.268, 26.872, -7.324),
    (-53.67, 0, -9.821),
    (-53.67, 0, -14.647),
    (-49.268, -26.872, -14.647),
    (0, -42.875, -14.647),
    (49.268, -26.872, -14.647),
    (53.67, 0, -14.647),
    (49.268, 26.872, -14.647),
    (0, 42.875, -14.647),
    (-49.268, 26.872, -14.647),
]))
fillet2.setExpression("Radius", "Params.fillet2_radius")
doc.recompute()

chamfer2 = body.newObject("PartDesign::Chamfer", "Chamfer001")
chamfer2.Base = (fillet2, edges_at(fillet2, [
    (-51.288, -28.327, -17.145),
    (0, -45.364, -17.145),
    (51.288, -28.327, -17.145),
    (56.159, 0, -17.145),
    (51.288, 28.327, -17.145),
    (0, 45.364, -17.145),
    (-51.288, 28.327, -17.145),
]))
chamfer2.setExpression("Size", "Params.chamfer2_size")

sketch6 = body.newObject("Sketcher::SketchObject", "Sketch005")
sketch6.AttachmentSupport = (doc.getObject("XY_Plane"), [""])
sketch6.MapMode = "FlatFace"
sketch6.AttachmentOffset = App.Placement(App.Vector(0, 0, 0.25 * 25.4), App.Rotation())
sketch6.addGeometry(Part.Circle(App.Vector(-63.5, 0, 0), App.Vector(0, 0, 1), 3.2639), False)
sketch6.addGeometry(Part.Circle(App.Vector(63.5, 0, 0), App.Vector(0, 0, 1), 3.2639), False)
sketch6.addConstraint(Sketcher.Constraint("Equal", 0, 1))
sketch6.addConstraint(Sketcher.Constraint("Symmetric", 0, 3, 1, 3, -1, 1))
sketch6.addConstraint(Sketcher.Constraint("PointOnObject", 0, 3, -1))
sketch6.addConstraint(Sketcher.Constraint("Diameter", 0, Q("0.257 in")))
sketch6.addConstraint(Sketcher.Constraint("DistanceX", 0, 3, 1, 3, Q("5 in")))
sketch6.setExpression("Constraints[3]", "Params.sketch6_diameter")
doc.recompute()
hole = body.newObject("PartDesign::Hole", "Hole")
hole.Profile = sketch6
hole.ThreadType = "None"
hole.setExpression("Diameter", "Params.hole_diameter")
hole.DepthType = "ThroughAll"

sketch7 = body.newObject("Sketcher::SketchObject", "Sketch006")
sketch7.AttachmentSupport = (doc.getObject("XY_Plane"), [""])
sketch7.MapMode = "FlatFace"
sketch7.addGeometry(Part.Circle(App.Vector(25.4, 0, 0), App.Vector(0, 0, 1), 7.9375), False)
sketch7.addGeometry(Part.Circle(App.Vector(-25.4, 0, 0), App.Vector(0, 0, 1), 7.9375), False)
sketch7.addConstraint(Sketcher.Constraint("Equal", 0, 1))
sketch7.addConstraint(Sketcher.Constraint("Symmetric", 0, 3, 1, 3, -1, 1))
sketch7.addConstraint(Sketcher.Constraint("PointOnObject", 0, 3, -1))
sketch7.addConstraint(Sketcher.Constraint("Diameter", 0, Q("0.625 in")))
sketch7.addConstraint(Sketcher.Constraint("DistanceX", -1, 1, 0, 3, Q("1 in")))
sketch7.setExpression("Constraints[3]", "Params.sketch7_diameter")
pad4 = body.newObject("PartDesign::Pad", "Pad003")
pad4.Profile = sketch7
pad4.setExpression("Length", "Params.pad4_length")
pad4.Reversed = True

sketch8 = body.newObject("Sketcher::SketchObject", "Sketch007")
sketch8.AttachmentSupport = (doc.getObject("XY_Plane"), [""])
sketch8.MapMode = "FlatFace"
sketch8.AttachmentOffset = App.Placement(App.Vector(0, 0, 0.25 * 25.4), App.Rotation())
sketch8.addGeometry(Part.Circle(App.Vector(-25.4, 0, 0), App.Vector(0, 0, 1), 2.57937), False)
sketch8.addGeometry(Part.Circle(App.Vector(25.4, 0, 0), App.Vector(0, 0, 1), 2.57937), False)
sketch8.addConstraint(Sketcher.Constraint("Equal", 0, 1))
sketch8.addConstraint(Sketcher.Constraint("Symmetric", 0, 3, 1, 3, -1, 1))
sketch8.addConstraint(Sketcher.Constraint("PointOnObject", 0, 3, -1))
sketch8.addConstraint(Sketcher.Constraint("DistanceX", 0, 3, -1, 1, Q("1 in")))
sketch8.addConstraint(Sketcher.Constraint("Diameter", 0, Q("0.2031 in")))
doc.recompute()
hole2 = body.newObject("PartDesign::Hole", "Hole001")
hole2.Profile = sketch8
hole2.ThreadType = "None"
hole2.setExpression("Diameter", "Params.hole2_diameter")
hole2.DepthType = "Dimension"
hole2.setExpression("Depth", "Params.hole2_depth")
hole2.DrillPoint = "Angled"
hole2.DrillPointAngle = 118
hole2.HoleCutType = "Counterbore"
hole2.setExpression("HoleCutDiameter", "Params.hole2_cbore_diameter")
hole2.setExpression("HoleCutDepth", "Params.hole2_cbore_depth")

doc.recompute()
